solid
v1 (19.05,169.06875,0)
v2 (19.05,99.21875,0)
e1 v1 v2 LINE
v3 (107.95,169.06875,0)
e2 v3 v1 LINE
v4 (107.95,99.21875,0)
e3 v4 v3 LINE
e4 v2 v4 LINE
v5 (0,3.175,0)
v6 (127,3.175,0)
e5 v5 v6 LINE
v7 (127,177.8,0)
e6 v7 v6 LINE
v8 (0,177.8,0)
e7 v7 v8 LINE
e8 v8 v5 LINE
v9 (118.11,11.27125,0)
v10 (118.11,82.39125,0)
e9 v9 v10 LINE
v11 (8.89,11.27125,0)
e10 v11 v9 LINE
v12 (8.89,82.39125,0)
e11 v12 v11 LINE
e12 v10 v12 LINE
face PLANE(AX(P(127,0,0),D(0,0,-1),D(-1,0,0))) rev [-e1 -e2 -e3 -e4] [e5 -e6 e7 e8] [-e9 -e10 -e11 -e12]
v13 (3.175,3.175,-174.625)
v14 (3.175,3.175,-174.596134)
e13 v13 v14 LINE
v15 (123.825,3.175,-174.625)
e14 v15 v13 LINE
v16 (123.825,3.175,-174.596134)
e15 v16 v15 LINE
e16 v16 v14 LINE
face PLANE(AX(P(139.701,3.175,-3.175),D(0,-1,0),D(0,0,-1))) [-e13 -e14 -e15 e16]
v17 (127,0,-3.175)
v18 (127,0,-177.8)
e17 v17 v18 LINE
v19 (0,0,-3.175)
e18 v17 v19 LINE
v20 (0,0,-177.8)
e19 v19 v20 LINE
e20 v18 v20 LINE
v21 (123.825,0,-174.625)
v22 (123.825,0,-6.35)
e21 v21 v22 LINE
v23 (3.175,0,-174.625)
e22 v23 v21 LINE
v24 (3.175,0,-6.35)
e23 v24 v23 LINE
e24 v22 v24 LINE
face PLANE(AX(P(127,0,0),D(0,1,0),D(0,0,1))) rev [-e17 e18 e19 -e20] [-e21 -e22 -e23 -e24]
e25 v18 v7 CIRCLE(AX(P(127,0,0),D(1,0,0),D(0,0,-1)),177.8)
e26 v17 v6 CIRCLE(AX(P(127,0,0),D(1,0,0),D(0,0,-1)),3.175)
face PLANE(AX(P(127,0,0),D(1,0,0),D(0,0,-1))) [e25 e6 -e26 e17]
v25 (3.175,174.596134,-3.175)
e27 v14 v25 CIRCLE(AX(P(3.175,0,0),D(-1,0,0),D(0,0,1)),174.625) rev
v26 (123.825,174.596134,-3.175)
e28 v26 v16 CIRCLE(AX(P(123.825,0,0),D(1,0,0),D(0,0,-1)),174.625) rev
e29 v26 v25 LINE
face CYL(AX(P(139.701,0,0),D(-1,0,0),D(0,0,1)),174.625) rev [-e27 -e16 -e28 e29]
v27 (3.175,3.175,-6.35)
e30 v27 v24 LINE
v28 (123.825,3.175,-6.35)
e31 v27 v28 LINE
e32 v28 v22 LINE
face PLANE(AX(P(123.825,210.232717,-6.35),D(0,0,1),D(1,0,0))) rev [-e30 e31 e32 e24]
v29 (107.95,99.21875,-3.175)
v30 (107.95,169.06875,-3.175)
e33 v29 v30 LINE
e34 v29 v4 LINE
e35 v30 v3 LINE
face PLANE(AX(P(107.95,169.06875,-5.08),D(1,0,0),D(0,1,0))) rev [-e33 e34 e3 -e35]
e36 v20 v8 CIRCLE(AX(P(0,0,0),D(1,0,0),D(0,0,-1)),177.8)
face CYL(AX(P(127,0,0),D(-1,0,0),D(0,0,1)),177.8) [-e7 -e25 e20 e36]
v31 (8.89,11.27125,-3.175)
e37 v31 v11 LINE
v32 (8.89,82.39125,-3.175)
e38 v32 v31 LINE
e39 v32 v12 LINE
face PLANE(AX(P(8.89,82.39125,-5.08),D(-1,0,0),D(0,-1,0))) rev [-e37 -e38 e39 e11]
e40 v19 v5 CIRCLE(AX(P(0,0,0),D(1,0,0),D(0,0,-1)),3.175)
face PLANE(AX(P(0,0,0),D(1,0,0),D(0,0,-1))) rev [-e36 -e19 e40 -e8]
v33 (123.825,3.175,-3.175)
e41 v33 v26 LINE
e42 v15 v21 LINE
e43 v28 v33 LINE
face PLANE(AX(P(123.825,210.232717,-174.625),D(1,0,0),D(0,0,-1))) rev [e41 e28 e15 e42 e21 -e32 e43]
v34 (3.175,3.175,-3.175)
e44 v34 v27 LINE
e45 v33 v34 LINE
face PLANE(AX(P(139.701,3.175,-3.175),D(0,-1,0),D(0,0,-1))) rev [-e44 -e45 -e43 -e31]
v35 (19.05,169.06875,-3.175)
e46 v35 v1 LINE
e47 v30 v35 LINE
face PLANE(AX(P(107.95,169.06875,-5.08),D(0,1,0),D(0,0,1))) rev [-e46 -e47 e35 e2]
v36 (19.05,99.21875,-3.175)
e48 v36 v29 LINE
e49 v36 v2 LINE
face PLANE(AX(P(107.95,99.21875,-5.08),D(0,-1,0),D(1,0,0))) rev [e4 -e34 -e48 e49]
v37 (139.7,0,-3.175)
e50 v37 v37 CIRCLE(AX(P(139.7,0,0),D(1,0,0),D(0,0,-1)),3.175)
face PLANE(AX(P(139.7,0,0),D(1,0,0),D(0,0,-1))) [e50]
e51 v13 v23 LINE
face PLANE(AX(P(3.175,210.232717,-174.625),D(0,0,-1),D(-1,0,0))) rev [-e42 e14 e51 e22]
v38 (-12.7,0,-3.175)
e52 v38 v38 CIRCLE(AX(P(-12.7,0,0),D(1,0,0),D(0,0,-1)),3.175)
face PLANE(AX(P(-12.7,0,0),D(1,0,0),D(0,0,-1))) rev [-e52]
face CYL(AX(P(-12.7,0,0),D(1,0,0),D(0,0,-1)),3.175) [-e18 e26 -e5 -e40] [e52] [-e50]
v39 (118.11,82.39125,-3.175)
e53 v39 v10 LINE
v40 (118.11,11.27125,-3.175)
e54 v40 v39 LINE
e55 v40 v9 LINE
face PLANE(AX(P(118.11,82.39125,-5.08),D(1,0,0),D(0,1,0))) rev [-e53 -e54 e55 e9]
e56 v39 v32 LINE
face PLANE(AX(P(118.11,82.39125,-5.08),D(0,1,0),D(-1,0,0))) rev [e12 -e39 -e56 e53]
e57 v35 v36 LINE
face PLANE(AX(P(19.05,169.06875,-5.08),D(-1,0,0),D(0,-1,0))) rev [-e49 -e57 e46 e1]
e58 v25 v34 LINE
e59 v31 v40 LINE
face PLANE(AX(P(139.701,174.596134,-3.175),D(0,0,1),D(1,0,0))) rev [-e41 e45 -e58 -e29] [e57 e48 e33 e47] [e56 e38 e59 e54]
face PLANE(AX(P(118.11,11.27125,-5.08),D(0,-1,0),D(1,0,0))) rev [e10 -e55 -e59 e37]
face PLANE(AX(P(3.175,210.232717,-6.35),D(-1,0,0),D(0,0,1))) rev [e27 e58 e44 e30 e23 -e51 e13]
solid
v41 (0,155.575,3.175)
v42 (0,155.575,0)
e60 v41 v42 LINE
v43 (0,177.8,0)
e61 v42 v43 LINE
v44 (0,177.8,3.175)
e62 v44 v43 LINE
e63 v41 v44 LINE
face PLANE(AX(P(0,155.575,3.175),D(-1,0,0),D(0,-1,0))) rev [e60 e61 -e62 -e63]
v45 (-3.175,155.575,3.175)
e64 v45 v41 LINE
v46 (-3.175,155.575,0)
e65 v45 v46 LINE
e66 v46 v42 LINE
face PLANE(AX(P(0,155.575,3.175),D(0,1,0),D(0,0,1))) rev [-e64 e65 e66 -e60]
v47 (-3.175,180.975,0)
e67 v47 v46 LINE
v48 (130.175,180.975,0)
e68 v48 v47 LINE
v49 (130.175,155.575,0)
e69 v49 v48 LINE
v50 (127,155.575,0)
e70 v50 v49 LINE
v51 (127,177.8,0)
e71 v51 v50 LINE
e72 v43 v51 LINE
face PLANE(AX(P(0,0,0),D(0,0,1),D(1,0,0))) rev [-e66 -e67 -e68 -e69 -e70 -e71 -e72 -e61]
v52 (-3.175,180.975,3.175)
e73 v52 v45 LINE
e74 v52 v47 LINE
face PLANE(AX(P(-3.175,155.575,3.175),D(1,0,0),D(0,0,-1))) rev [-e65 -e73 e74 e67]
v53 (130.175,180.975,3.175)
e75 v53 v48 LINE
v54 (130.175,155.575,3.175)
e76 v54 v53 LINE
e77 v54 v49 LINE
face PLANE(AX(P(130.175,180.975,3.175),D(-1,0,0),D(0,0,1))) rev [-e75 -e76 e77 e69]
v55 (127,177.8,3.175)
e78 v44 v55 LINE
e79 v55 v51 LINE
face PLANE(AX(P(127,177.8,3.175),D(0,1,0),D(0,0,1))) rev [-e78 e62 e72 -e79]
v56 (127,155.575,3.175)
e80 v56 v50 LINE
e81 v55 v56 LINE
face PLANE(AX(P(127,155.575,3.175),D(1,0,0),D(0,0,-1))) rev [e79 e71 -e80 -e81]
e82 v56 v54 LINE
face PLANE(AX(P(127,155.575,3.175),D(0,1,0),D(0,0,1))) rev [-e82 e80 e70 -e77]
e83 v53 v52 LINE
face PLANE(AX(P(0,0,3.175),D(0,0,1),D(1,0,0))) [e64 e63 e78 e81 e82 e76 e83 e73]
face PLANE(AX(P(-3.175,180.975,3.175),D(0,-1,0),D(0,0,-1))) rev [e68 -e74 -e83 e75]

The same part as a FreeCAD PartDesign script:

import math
import FreeCAD as App
import Part
import Sketcher
Q = App.Units.Quantity


def add_polygon(sketch, points):
    """Adds a closed chain of lines whose ends are joined by coincident constraints."""
    first, n = sketch.GeometryCount, len(points)
    for a, b in zip(points, points[1:] + points[:1]):
        sketch.addGeometry(Part.LineSegment(App.Vector(*a, 0), App.Vector(*b, 0)), False)
    for i in range(n):
        sketch.addConstraint(Sketcher.Constraint("Coincident", first + i, 2, first + (i + 1) % n, 1))

doc = App.newDocument("Part")
body = doc.addObject("PartDesign::Body", "Body")

# Sketch on YZ plane
sketch1 = body.newObject("Sketcher::SketchObject", "Sketch")
sketch1.AttachmentSupport = (doc.getObject("YZ_Plane"), [""])
sketch1.MapMode = "FlatFace"
sketch1.addGeometry(Part.LineSegment(App.Vector(178, 0, 0), App.Vector(0, 0, 0)), False)
sketch1.addGeometry(Part.LineSegment(App.Vector(0, 0, 0), App.Vector(0, -178, 0)), False)
sketch1.addGeometry(Part.ArcOfCircle(Part.Circle(App.Vector(0, 0, 0), App.Vector(0, 0, 1), 178), math.radians(-90), math.radians(0)), False)
sketch1.addConstraint(Sketcher.Constraint("Coincident", 0, 2, 1, 1))
sketch1.addConstraint(Sketcher.Constraint("Coincident", 1, 2, 2, 1))
sketch1.addConstraint(Sketcher.Constraint("Coincident", 2, 2, 0, 1))
sketch1.addConstraint(Sketcher.Constraint("Horizontal", 0))
sketch1.addConstraint(Sketcher.Constraint("Vertical", 1))
sketch1.addConstraint(Sketcher.Constraint("Coincident", 2, 3, -1, 1))
sketch1.addConstraint(Sketcher.Constraint("Coincident", 0, 2, -1, 1))
sketch1.addConstraint(Sketcher.Constraint("Radius", 2, Q("7 in")))
pad1 = body.newObject("PartDesign::Pad", "Pad")
pad1.Profile = sketch1
pad1.Length = Q("5 in")

# Sketch on YZ plane
sketch2 = body.newObject("Sketcher::SketchObject", "Sketch001")
sketch2.AttachmentSupport = (doc.getObject("YZ_Plane"), [""])
sketch2.MapMode = "FlatFace"
sketch2.AttachmentOffset = App.Placement(App.Vector(0, 0, 5 * 25.4), App.Rotation())
sketch2.addGeometry(Part.Circle(App.Vector(0, 0, 0), App.Vector(0, 0, 1), 3.2), False)
sketch2.addConstraint(Sketcher.Constraint("Coincident", 0, 3, -1, 1))
sketch2.addConstraint(Sketcher.Constraint("Diameter", 0, Q("0.25 in")))
pad2 = body.newObject("PartDesign::Pad", "Pad001")
pad2.Profile = sketch2
pad2.Type = "TwoLengths"
pad2.Length = Q("0.5 in")
pad2.Length2 = Q("5.5 in")

# Sketch on XY plane
sketch3 = body.newObject("Sketcher::SketchObject", "Sketch002")
sketch3.AttachmentSupport = (doc.getObject("XY_Plane"), [""])
sketch3.MapMode = "FlatFace"
add_polygon(sketch3, [(19, 169), (19, 99), (108, 99), (108, 169)])  # lines 0-3
add_polygon(sketch3, [(9, 82), (9, 11), (118, 11), (118, 82)])  # lines 4-7
sketch3.addConstraint(Sketcher.Constraint("Vertical", 0))
sketch3.addConstraint(Sketcher.Constraint("Horizontal", 1))
sketch3.addConstraint(Sketcher.Constraint("Vertical", 2))
sketch3.addConstraint(Sketcher.Constraint("Horizontal", 3))
sketch3.addConstraint(Sketcher.Constraint("Vertical", 4))
sketch3.addConstraint(Sketcher.Constraint("Horizontal", 5))
sketch3.addConstraint(Sketcher.Constraint("Vertical", 6))
sketch3.addConstraint(Sketcher.Constraint("Horizontal", 7))
sketch3.addConstraint(Sketcher.Constraint("DistanceX", 1, 1, 1, 2, Q("3.5 in")))
sketch3.addConstraint(Sketcher.Constraint("DistanceX", 5, 1, 5, 2, Q("4.3 in")))
sketch3.addConstraint(Sketcher.Constraint("DistanceY", 4, 2, 4, 1, Q("2.8 in")))
sketch3.addConstraint(Sketcher.Constraint("DistanceY", 0, 2, 0, 1, Q("2.75 in")))
sketch3.addConstraint(Sketcher.Constraint("DistanceX", 4, 2, 0, 2, Q("0.4 in")))
sketch3.addConstraint(Sketcher.Constraint("DistanceX", -1, 1, 0, 2, Q("0.75 in")))
sketch3.addConstraint(Sketcher.Constraint("DistanceY", -1, 1, 0, 2, Q("3.90625 in")))
sketch3.addConstraint(Sketcher.Constraint("DistanceY", 4, 2, 0, 2, Q("3.4625 in")))
pocket1 = body.newObject("PartDesign::Pocket", "Pocket")
pocket1.Profile = sketch3
pocket1.Length = Q("0.2 in")

# Sketch on YZ plane
sketch4 = body.newObject("Sketcher::SketchObject", "Sketch003")
sketch4.AttachmentSupport = (doc.getObject("YZ_Plane"), [""])
sketch4.MapMode = "FlatFace"
sketch4.addGeometry(Part.LineSegment(App.Vector(3, -175, 0), App.Vector(3, -3, 0)), False)
sketch4.addGeometry(Part.LineSegment(App.Vector(3, -3, 0), App.Vector(175, -3, 0)), False)
sketch4.addGeometry(Part.ArcOfCircle(Part.Circle(App.Vector(0, 0, 0), App.Vector(0, 0, 1), 175), math.radians(-89), math.radians(-1)), False)
sketch4.addConstraint(Sketcher.Constraint("Coincident", 0, 2, 1, 1))
sketch4.addConstraint(Sketcher.Constraint("Coincident", 1, 2, 2, 2))
sketch4.addConstraint(Sketcher.Constraint("Coincident", 2, 1, 0, 1))
sketch4.addConstraint(Sketcher.Constraint("Vertical", 0))
sketch4.addConstraint(Sketcher.Constraint("Horizontal", 1))
sketch4.addConstraint(Sketcher.Constraint("Coincident", 2, 3, -1, 1))
sketch4.addConstraint(Sketcher.Constraint("Equal", 1, 0))
sketch4.addConstraint(Sketcher.Constraint("Radius", 2, Q("6.875 in")))
sketch4.addConstraint(Sketcher.Constraint("DistanceX", -1, 1, 0, 2, Q("0.125 in")))
pocket2 = body.newObject("PartDesign::Pocket", "Pocket001")
pocket2.Profile = sketch4
pocket2.Length = Q("5 in")
pocket2.Reversed = True

# Sketch on XZ plane
sketch5 = body.newObject("Sketcher::SketchObject", "Sketch004")
sketch5.AttachmentSupport = (doc.getObject("XZ_Plane"), [""])
sketch5.MapMode = "FlatFace"
add_polygon(sketch5, [(3, -6), (3, -175), (124, -175), (124, -6)])  # lines 0-3
sketch5.addConstraint(Sketcher.Constraint("Vertical", 0))
sketch5.addConstraint(Sketcher.Constraint("Horizontal", 1))
sketch5.addConstraint(Sketcher.Constraint("Vertical", 2))
sketch5.addConstraint(Sketcher.Constraint("Horizontal", 3))
sketch5.addConstraint(Sketcher.Constraint("DistanceX", 1, 1, 1, 2, Q("4.75 in")))
sketch5.addConstraint(Sketcher.Constraint("DistanceY", 0, 2, 0, 1, Q("6.625 in")))
sketch5.addConstraint(Sketcher.Constraint("DistanceY", 2, 2, -1, 1, Q("0.25 in")))
sketch5.addConstraint(Sketcher.Constraint("DistanceX", -1, 1, 0, 2, Q("0.125 in")))
pocket3 = body.newObject("PartDesign::Pocket", "Pocket002")
pocket3.Profile = sketch5
pocket3.Length = Q("0.125 in")

# Sketch on YZ plane
sketch6 = body.newObject("Sketcher::SketchObject", "Sketch005")
sketch6.AttachmentSupport = (doc.getObject("YZ_Plane"), [""])
sketch6.MapMode = "FlatFace"
sketch6.addGeometry(Part.LineSegment(App.Vector(1.3, -176.5, 0), App.Vector(1.3, -4.3, 0)), False)
sketch6.addGeometry(Part.ArcOfCircle(Part.Circle(App.Vector(0, 0, 0), App.Vector(0, 0, 1), 4.4), math.radians(-73), math.radians(-17)), False)
sketch6.addGeometry(Part.LineSegment(App.Vector(4.3, -1.3, 0), App.Vector(176.5, -1.3, 0)), False)
sketch6.addGeometry(Part.ArcOfCircle(Part.Circle(App.Vector(0, 0, 0), App.Vector(0, 0, 1), 176.5), math.radians(-90), math.radians(0)), False)
sketch6.addConstraint(Sketcher.Constraint("Coincident", 0, 2, 1, 1))
sketch6.addConstraint(Sketcher.Constraint("Coincident", 1, 2, 2, 1))
sketch6.addConstraint(Sketcher.Constraint("Coincident", 2, 2, 3, 2))
sketch6.addConstraint(Sketcher.Constraint("Coincident", 3, 1, 0, 1))
sketch6.addConstraint(Sketcher.Constraint("Vertical", 0))
sketch6.addConstraint(Sketcher.Constraint("Horizontal", 2))
sketch6.addConstraint(Sketcher.Constraint("Coincident", 1, 3, -1, 1))
sketch6.addConstraint(Sketcher.Constraint("Coincident", 3, 3, -1, 1))
sketch6.addConstraint(Sketcher.Constraint("Equal", 2, 0))
sketch6.addConstraint(Sketcher.Constraint("Radius", 3, Q("6.95 in")))
sketch6.addConstraint(Sketcher.Constraint("Radius", 1, Q("0.175 in")))
sketch6.addConstraint(Sketcher.Constraint("DistanceX", -1, 1, 0, 2, Q("0.05 in")))
pad3 = body.newObject("PartDesign::Pad", "Pad002")
pad3.Profile = sketch6
pad3.Length = Q("0.125 in")

# Sketch on YZ plane
sketch7 = body.newObject("Sketcher::SketchObject", "Sketch006")
sketch7.AttachmentSupport = (doc.getObject("YZ_Plane"), [""])
sketch7.MapMode = "FlatFace"
sketch7.AttachmentOffset = App.Placement(App.Vector(0, 0, 5 * 25.4), App.Rotation())
sketch7.addGeometry(Part.LineSegment(App.Vector(1.3, -4.3, 0), App.Vector(1.3, -176.5, 0)), False)
sketch7.addGeometry(Part.ArcOfCircle(Part.Circle(App.Vector(0, 0, 0), App.Vector(0, 0, 1), 176.5), math.radians(-90), math.radians(0)), False)
sketch7.addGeometry(Part.LineSegment(App.Vector(176.5, -1.3, 0), App.Vector(4.3, -1.3, 0)), False)
sketch7.addGeometry(Part.ArcOfCircle(Part.Circle(App.Vector(0, 0, 0), App.Vector(0, 0, 1), 4.4), math.radians(-73), math.radians(-17)), False)
sketch7.addConstraint(Sketcher.Constraint("Coincident", 0, 2, 1, 1))
sketch7.addConstraint(Sketcher.Constraint("Coincident", 1, 2, 2, 1))
sketch7.addConstraint(Sketcher.Constraint("Coincident", 2, 2, 3, 2))
sketch7.addConstraint(Sketcher.Constraint("Coincident", 3, 1, 0, 1))
sketch7.addConstraint(Sketcher.Constraint("Vertical", 0))
sketch7.addConstraint(Sketcher.Constraint("Horizontal", 2))
sketch7.addConstraint(Sketcher.Constraint("Coincident", 1, 3, -1, 1))
sketch7.addConstraint(Sketcher.Constraint("Coincident", 3, 3, -1, 1))
sketch7.addConstraint(Sketcher.Constraint("Equal", 2, 0))
sketch7.addConstraint(Sketcher.Constraint("Radius", 1, Q("6.95 in")))
sketch7.addConstraint(Sketcher.Constraint("Radius", 3, Q("0.175 in")))
sketch7.addConstraint(Sketcher.Constraint("DistanceX", -1, 1, 0, 2, Q("0.05 in")))
pad4 = body.newObject("PartDesign::Pad", "Pad003")
pad4.Profile = sketch7
pad4.Length = Q("0.125 in")
pad4.Reversed = True
body2 = doc.addObject("PartDesign::Body", "Body001")

# Sketch on XY plane
sketch8 = body2.newObject("Sketcher::SketchObject", "Sketch007")
sketch8.AttachmentSupport = (doc.getObject("XY_Plane001"), [""])
sketch8.MapMode = "FlatFace"
add_polygon(sketch8, [(-3.2, 155.6), (0, 155.6), (0, 177.8), (127, 177.8), (127, 155.6), (130.2, 155.6), (130.2, 181), (-3.2, 181)])  # lines 0-7
sketch8.addConstraint(Sketcher.Constraint("Horizontal", 0))
sketch8.addConstraint(Sketcher.Constraint("Vertical", 1))
sketch8.addConstraint(Sketcher.Constraint("Horizontal", 2))
sketch8.addConstraint(Sketcher.Constraint("Vertical", 3))
sketch8.addConstraint(Sketcher.Constraint("Horizontal", 4))
sketch8.addConstraint(Sketcher.Constraint("Vertical", 5))
sketch8.addConstraint(Sketcher.Constraint("Horizontal", 6))
sketch8.addConstraint(Sketcher.Constraint("Vertical", 7))
sketch8.addConstraint(Sketcher.Constraint("PointOnObject", 0, 2, -2))
sketch8.addConstraint(Sketcher.Constraint("Horizontal", 0, 2, 3, 2))
sketch8.addConstraint(Sketcher.Constraint("Equal", 0, 4))
sketch8.addConstraint(Sketcher.Constraint("DistanceX", 2, 1, 2, 2, Q("5 in")))
sketch8.addConstraint(Sketcher.Constraint("DistanceY", 5, 1, 5, 2, Q("1 in")))
sketch8.addConstraint(Sketcher.Constraint("DistanceY", -1, 1, 1, 2, Q("7 in")))
sketch8.addConstraint(Sketcher.Constraint("DistanceX", 6, 2, 6, 1, Q("5.25 in")))
sketch8.addConstraint(Sketcher.Constraint("DistanceY", 1, 1, 1, 2, Q("0.875 in")))
pad5 = body2.newObject("PartDesign::Pad", "Pad004")
pad5.Profile = sketch8
pad5.Length = Q("0.125 in")

doc.recompute()
